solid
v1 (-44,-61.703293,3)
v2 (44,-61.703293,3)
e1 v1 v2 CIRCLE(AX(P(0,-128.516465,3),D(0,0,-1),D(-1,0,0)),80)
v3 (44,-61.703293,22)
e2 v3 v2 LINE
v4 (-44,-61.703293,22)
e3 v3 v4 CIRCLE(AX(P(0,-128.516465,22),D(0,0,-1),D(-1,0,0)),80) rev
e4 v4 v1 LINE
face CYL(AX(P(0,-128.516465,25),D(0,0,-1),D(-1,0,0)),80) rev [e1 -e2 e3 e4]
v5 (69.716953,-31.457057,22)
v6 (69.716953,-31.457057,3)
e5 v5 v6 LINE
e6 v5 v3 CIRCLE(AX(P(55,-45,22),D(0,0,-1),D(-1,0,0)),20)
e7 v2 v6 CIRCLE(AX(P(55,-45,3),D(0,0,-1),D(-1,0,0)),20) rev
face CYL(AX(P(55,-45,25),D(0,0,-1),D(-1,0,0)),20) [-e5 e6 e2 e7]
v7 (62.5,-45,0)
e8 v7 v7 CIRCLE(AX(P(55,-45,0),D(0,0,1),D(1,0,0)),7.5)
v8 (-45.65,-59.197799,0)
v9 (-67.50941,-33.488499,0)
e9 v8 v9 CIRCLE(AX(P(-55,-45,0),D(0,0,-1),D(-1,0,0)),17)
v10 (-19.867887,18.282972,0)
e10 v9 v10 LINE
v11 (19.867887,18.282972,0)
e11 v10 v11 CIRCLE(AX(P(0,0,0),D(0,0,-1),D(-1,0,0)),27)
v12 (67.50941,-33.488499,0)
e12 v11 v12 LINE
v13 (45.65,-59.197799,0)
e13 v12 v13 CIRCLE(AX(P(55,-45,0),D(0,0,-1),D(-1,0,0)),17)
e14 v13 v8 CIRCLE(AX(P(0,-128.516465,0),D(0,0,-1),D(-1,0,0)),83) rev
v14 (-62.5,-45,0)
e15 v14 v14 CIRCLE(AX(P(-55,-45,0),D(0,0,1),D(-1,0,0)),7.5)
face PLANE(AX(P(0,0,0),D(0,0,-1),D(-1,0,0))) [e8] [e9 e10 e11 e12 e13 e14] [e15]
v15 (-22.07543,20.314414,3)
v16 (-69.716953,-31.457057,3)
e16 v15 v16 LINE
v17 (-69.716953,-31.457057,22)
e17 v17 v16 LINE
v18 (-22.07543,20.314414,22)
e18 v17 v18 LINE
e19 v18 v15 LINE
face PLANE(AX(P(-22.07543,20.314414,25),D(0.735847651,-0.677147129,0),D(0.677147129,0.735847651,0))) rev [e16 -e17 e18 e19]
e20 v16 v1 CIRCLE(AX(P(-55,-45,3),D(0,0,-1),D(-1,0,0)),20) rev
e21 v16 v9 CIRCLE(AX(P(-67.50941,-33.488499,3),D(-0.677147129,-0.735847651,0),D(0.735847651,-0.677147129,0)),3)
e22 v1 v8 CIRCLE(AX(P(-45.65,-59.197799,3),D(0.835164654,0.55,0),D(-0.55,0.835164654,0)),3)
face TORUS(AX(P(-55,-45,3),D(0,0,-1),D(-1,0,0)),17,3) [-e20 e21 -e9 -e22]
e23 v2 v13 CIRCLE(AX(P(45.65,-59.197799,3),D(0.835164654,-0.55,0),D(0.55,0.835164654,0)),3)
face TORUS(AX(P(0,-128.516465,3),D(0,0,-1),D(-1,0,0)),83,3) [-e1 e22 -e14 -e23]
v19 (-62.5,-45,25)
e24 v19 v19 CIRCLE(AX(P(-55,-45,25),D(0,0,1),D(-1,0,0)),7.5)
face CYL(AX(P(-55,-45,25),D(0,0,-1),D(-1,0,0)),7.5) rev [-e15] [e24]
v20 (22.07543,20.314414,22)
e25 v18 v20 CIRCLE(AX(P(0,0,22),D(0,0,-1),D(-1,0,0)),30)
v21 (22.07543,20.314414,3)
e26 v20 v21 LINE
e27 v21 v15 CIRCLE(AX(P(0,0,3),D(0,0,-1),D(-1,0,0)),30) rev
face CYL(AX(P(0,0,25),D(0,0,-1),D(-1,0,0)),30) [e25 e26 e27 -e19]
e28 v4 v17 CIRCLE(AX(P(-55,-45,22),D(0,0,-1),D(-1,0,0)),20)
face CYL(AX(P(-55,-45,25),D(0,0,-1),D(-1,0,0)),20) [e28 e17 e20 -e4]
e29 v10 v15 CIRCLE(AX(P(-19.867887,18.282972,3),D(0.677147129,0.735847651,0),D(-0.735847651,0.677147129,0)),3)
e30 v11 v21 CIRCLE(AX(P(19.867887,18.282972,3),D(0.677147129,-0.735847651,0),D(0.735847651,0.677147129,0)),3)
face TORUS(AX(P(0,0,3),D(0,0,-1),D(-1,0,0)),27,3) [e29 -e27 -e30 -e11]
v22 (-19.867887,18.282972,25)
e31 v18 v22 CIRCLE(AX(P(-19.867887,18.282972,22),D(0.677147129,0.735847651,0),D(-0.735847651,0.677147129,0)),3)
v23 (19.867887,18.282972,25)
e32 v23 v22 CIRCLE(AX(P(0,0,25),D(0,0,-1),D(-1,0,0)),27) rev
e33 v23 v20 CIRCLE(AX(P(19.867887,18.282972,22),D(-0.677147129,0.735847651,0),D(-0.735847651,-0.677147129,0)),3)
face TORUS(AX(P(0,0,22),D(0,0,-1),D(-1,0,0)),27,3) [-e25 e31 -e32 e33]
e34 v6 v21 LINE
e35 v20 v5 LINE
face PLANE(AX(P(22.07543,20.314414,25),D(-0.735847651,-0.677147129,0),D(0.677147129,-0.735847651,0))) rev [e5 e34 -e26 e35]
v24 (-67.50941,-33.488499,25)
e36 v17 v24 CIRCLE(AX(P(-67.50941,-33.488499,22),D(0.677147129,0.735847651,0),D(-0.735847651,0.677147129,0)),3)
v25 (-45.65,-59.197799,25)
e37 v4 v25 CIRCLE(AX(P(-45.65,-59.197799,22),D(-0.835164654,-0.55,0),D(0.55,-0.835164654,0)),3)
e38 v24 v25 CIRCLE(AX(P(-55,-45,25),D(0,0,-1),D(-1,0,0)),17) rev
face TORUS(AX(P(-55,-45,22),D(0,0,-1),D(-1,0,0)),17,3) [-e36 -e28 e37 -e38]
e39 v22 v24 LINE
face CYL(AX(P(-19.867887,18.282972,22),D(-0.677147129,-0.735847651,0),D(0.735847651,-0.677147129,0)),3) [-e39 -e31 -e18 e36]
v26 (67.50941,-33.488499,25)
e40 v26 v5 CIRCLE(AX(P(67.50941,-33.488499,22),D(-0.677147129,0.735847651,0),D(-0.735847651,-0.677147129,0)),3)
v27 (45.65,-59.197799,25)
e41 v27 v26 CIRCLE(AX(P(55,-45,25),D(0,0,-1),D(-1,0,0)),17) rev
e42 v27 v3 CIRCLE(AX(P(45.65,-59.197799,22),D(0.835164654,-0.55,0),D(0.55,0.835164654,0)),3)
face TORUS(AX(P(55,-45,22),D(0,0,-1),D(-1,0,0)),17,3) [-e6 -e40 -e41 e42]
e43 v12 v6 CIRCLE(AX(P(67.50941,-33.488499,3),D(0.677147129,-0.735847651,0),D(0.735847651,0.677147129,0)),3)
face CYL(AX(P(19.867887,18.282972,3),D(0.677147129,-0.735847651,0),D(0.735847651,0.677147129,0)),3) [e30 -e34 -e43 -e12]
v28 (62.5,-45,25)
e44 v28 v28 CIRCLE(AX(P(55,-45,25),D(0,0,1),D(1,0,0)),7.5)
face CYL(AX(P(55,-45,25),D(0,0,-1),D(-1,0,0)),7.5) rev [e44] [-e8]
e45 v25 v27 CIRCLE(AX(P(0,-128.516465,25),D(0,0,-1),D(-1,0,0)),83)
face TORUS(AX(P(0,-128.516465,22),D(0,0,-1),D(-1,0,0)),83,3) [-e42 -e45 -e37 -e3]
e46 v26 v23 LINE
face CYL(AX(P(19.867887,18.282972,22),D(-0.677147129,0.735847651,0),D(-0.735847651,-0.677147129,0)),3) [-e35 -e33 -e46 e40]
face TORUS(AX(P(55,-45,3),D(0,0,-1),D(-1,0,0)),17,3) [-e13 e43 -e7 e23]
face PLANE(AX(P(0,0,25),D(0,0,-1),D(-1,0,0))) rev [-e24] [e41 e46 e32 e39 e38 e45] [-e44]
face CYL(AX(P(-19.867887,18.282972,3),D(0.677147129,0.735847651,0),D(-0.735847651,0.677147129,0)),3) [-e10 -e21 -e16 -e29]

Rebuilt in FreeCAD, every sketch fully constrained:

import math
import FreeCAD as App
import Part
import Sketcher

V = App.Vector


def edges_at(feature, points):
    """Names of the edges that pass closest to the given points."""
    edges = feature.Shape.Edges
    near = lambda p: min(range(len(edges)), key=lambda i: edges[i].distToShape(Part.Vertex(*p))[0])
    return sorted({f"Edge{near(p) + 1}" for p in points})

doc = App.newDocument("Part")
body = doc.addObject("PartDesign::Body", "Body")

sketch1 = body.newObject("Sketcher::SketchObject", "Sketch")
sketch1.AttachmentSupport = (doc.getObject("XY_Plane"), [""])
sketch1.MapMode = "FlatFace"
sketch1.addGeometry([
    Part.LineSegment(V(69.716953, -31.457057, 0), V(22.07543, 20.314414, 0)),
    Part.ArcOfCircle(Part.Circle(V(0, 0, 0), V(0, 0, 1), 30), math.radians(42.62111), math.radians(137.37889)),
    Part.LineSegment(V(-22.07543, 20.314414, 0), V(-69.716953, -31.457057, 0)),
    Part.ArcOfCircle(Part.Circle(V(-55, -45, 0), V(0, 0, 1), 20), math.radians(137.37889), math.radians(303.367013)),
    Part.ArcOfCircle(Part.Circle(V(0, -128.516465, 0), V(0, 0, 1), 80), math.radians(56.632987), math.radians(123.367013)),
    Part.ArcOfCircle(Part.Circle(V(55, -45, 0), V(0, 0, 1), 20), math.radians(-123.367013), math.radians(42.62111)),
    Part.Circle(V(55, -45, 0), V(0, 0, 1), 7.5),
    Part.Circle(V(-55, -45, 0), V(0, 0, 1), 7.5),
], False)
sketch1.addConstraint([
    Sketcher.Constraint("Tangent", 0, 2, 1, 1),
    Sketcher.Constraint("Tangent", 1, 2, 2, 1),
    Sketcher.Constraint("Tangent", 2, 2, 3, 1),
    Sketcher.Constraint("Tangent", 3, 2, 4, 2),
    Sketcher.Constraint("Tangent", 4, 1, 5, 1),
    Sketcher.Constraint("Tangent", 5, 2, 0, 1),
    Sketcher.Constraint("Coincident", 1, 3, -1, 1),
    Sketcher.Constraint("Coincident", 6, 3, 5, 3),
    Sketcher.Constraint("Coincident", 7, 3, 3, 3),
    Sketcher.Constraint("Equal", 3, 5),
    Sketcher.Constraint("Equal", 6, 7),
    Sketcher.Constraint("Symmetric", 3, 3, 5, 3, -2),
    Sketcher.Constraint("Diameter", 6, 15.0),
    Sketcher.Constraint("Radius", 1, 30.0),
    Sketcher.Constraint("Radius", 3, 20.0),
    Sketcher.Constraint("Radius", 4, 80.0),
    Sketcher.Constraint("DistanceX", 3, 3, -1, 1, 55.0),
    Sketcher.Constraint("DistanceY", 3, 3, -1, 1, 45.0),
])
pad1 = body.newObject("PartDesign::Pad", "Pad")
pad1.Profile = sketch1
pad1.Length = 25
doc.recompute()

fillet = body.newObject("PartDesign::Fillet", "Fillet")
fillet.Base = (pad1, edges_at(pad1, [
    (-70.237, -57.955, 25),
    (0, -48.516, 25),
    (70.237, -57.955, 25),
    (45.896, -5.571, 25),
    (0, 30, 25),
    (45.896, -5.571, 0),
    (70.237, -57.955, 0),
    (0, -48.516, 0),
    (-70.237, -57.955, 0),
    (-45.896, -5.571, 0),
    (0, 30, 0),
    (-45.896, -5.571, 25),
]))
fillet.Radius = 3

doc.recompute()
